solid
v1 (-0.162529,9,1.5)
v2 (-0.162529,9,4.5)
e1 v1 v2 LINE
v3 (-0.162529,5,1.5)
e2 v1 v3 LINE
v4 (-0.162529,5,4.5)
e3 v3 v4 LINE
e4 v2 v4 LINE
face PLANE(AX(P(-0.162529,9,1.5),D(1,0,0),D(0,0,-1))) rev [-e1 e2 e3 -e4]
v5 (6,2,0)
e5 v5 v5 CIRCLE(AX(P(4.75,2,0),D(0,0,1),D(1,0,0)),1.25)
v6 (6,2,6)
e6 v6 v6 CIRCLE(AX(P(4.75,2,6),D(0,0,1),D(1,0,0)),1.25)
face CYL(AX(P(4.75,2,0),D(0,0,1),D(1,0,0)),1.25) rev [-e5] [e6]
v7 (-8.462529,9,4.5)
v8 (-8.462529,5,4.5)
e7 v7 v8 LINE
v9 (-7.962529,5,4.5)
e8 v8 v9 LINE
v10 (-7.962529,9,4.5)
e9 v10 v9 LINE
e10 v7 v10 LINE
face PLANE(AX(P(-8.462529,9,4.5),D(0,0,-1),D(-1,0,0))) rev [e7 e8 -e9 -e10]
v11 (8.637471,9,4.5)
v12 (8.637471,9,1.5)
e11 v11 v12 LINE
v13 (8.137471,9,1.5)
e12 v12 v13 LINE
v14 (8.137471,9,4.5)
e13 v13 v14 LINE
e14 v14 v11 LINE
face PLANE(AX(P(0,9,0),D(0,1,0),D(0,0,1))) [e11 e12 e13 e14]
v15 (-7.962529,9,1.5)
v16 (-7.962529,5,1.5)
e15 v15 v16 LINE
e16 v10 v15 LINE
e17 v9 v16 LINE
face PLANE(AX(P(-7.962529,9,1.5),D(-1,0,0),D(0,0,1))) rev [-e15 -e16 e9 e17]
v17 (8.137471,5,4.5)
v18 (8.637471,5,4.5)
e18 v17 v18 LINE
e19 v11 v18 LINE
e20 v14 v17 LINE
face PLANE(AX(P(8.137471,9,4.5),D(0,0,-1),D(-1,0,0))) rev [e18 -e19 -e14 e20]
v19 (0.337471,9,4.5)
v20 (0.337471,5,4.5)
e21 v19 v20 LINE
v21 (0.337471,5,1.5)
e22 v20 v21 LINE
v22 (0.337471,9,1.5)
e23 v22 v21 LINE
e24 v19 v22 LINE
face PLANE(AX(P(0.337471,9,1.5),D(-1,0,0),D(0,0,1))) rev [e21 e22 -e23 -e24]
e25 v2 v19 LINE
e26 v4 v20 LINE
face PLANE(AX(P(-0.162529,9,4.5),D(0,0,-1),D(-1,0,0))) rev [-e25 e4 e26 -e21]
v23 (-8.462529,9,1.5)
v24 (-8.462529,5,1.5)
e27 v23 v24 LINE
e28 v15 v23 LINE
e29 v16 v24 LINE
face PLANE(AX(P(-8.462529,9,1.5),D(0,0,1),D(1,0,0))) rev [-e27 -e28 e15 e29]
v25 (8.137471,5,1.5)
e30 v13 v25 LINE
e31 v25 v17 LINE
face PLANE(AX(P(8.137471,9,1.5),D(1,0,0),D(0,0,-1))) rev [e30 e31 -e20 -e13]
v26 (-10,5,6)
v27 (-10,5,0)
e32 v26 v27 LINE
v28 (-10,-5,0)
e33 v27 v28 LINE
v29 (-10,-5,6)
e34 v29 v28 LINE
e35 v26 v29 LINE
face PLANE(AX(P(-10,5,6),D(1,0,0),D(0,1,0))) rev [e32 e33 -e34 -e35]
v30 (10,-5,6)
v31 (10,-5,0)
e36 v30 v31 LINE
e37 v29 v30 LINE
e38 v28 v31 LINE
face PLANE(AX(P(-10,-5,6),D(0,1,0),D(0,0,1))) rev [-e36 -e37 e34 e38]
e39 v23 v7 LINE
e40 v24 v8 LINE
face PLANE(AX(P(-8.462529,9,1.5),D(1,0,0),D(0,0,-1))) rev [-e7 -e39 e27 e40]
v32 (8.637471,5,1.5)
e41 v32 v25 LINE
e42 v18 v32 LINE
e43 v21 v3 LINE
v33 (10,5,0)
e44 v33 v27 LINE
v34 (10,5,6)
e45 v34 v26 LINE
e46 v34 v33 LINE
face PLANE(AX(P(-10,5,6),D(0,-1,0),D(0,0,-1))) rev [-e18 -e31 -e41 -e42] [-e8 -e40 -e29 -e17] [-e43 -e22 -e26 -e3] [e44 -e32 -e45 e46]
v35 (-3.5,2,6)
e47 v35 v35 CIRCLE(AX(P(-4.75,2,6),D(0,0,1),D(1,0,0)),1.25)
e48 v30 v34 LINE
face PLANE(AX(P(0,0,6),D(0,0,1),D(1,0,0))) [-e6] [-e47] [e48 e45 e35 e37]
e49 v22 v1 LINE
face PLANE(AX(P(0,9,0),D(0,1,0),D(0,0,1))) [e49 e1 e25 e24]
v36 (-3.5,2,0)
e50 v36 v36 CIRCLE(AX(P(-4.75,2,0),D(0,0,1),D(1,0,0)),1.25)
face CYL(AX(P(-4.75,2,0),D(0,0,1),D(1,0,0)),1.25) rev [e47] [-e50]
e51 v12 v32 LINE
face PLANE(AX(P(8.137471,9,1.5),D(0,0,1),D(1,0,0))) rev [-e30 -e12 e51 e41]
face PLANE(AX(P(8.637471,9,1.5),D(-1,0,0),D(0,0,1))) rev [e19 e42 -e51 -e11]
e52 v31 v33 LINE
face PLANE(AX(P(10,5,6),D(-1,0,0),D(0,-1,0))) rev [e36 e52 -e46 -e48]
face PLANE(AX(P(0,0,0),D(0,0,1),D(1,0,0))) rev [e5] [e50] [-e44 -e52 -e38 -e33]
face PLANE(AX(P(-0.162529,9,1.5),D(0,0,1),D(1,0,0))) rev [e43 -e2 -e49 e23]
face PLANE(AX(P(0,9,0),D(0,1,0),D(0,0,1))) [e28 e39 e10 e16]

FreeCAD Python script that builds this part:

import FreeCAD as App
import Part
import Sketcher

V = App.Vector


def add_polygon(sketch, points):
    """Adds a closed chain of lines whose ends are joined by coincident constraints."""
    first, n = sketch.GeometryCount, len(points)
    for a, b in zip(points, points[1:] + points[:1]):
        sketch.addGeometry(Part.LineSegment(App.Vector(*a, 0), App.Vector(*b, 0)), False)
    for i in range(n):
        sketch.addConstraint(Sketcher.Constraint("Coincident", first + i, 2, first + (i + 1) % n, 1))

doc = App.newDocument("Part")
body = doc.addObject("PartDesign::Body", "Body")

# Sketch on XY plane
sketch1 = doc.addObject("Sketcher::SketchObject", "Sketch")
body.addObject(sketch1)
sketch1.AttachmentSupport = (doc.XY_Plane, [""])
sketch1.MapMode = "FlatFace"
add_polygon(sketch1, [(-10, 5), (-10, -5), (10, -5), (10, 5)])  # lines 0-3
sketch1.addConstraint(Sketcher.Constraint("Vertical", 0))
sketch1.addConstraint(Sketcher.Constraint("Horizontal", 1))
sketch1.addConstraint(Sketcher.Constraint("Vertical", 2))
sketch1.addConstraint(Sketcher.Constraint("Horizontal", 3))
sketch1.addConstraint(Sketcher.Constraint("Symmetric", 0, 2, 2, 2, -1, 1))
sketch1.addConstraint(Sketcher.Constraint("DistanceX", 1, 1, 1, 2, 20.0))
sketch1.addConstraint(Sketcher.Constraint("DistanceY", 0, 2, 0, 1, 10.0))
pad1 = doc.addObject("PartDesign::Pad", "Pad")
body.addObject(pad1)
pad1.Profile = sketch1
pad1.Length = 6

# Sketch on XZ plane
sketch2 = doc.addObject("Sketcher::SketchObject", "Sketch001")
body.addObject(sketch2)
sketch2.AttachmentSupport = (doc.XZ_Plane, [""])
sketch2.MapMode = "FlatFace"
sketch2.AttachmentOffset = App.Placement(V(0, 0, -5), App.Rotation())
add_polygon(sketch2, [(-8.5, 1.5), (-8.5, 4.5), (-8, 4.5), (-8, 1.5)])  # lines 0-3
add_polygon(sketch2, [(-0.2, 1.5), (-0.2, 4.5), (0.3, 4.5), (0.3, 1.5)])  # lines 4-7
add_polygon(sketch2, [(8.1, 1.5), (8.1, 4.5), (8.6, 4.5), (8.6, 1.5)])  # lines 8-11
sketch2.addConstraint(Sketcher.Constraint("Vertical", 0))
sketch2.addConstraint(Sketcher.Constraint("Horizontal", 1))
sketch2.addConstraint(Sketcher.Constraint("Vertical", 2))
sketch2.addConstraint(Sketcher.Constraint("Horizontal", 3))
sketch2.addConstraint(Sketcher.Constraint("Vertical", 4))
sketch2.addConstraint(Sketcher.Constraint("Horizontal", 5))
sketch2.addConstraint(Sketcher.Constraint("Vertical", 6))
sketch2.addConstraint(Sketcher.Constraint("Horizontal", 7))
sketch2.addConstraint(Sketcher.Constraint("Vertical", 8))
sketch2.addConstraint(Sketcher.Constraint("Horizontal", 9))
sketch2.addConstraint(Sketcher.Constraint("Vertical", 10))
sketch2.addConstraint(Sketcher.Constraint("Horizontal", 11))
sketch2.addConstraint(Sketcher.Constraint("Horizontal", 1, 2, 4, 2))
sketch2.addConstraint(Sketcher.Constraint("Horizontal", 3, 2, 6, 2))
sketch2.addConstraint(Sketcher.Constraint("Horizontal", 5, 2, 8, 2))
sketch2.addConstraint(Sketcher.Constraint("Horizontal", 7, 2, 10, 2))
sketch2.addConstraint(Sketcher.Constraint("Equal", 3, 5))
sketch2.addConstraint(Sketcher.Constraint("Equal", 7, 9))
sketch2.addConstraint(Sketcher.Constraint("DistanceY", 0, 1, 0, 2, 3.0))
sketch2.addConstraint(Sketcher.Constraint("DistanceX", 1, 1, 1, 2, 0.5))
sketch2.addConstraint(Sketcher.Constraint("DistanceY", -1, 1, 0, 2, 4.5))
sketch2.addConstraint(Sketcher.Constraint("DistanceX", 1, 2, 4, 2, 7.8))
sketch2.addConstraint(Sketcher.Constraint("DistanceX", 5, 2, 8, 2, 7.8))
sketch2.addConstraint(Sketcher.Constraint("DistanceX", 0, 2, -1, 1, 8.462529))
pad2 = doc.addObject("PartDesign::Pad", "Pad001")
body.addObject(pad2)
pad2.Profile = sketch2
pad2.Length = 4
pad2.Reversed = True

# Sketch on XY plane
sketch3 = doc.addObject("Sketcher::SketchObject", "Sketch002")
body.addObject(sketch3)
sketch3.AttachmentSupport = (doc.XY_Plane, [""])
sketch3.MapMode = "FlatFace"
sketch3.AttachmentOffset = App.Placement(V(0, 0, 6), App.Rotation())
sketch3.addGeometry(Part.Circle(V(-4.8, 2, 0), V(0, 0, 1), 1.2), False)
sketch3.addGeometry(Part.Circle(V(4.8, 2, 0), V(0, 0, 1), 1.2), False)
sketch3.addConstraint(Sketcher.Constraint("Equal", 0, 1))
sketch3.addConstraint(Sketcher.Constraint("Symmetric", 0, 3, 1, 3, -2))
sketch3.addConstraint(Sketcher.Constraint("Diameter", 0, 2.5))
sketch3.addConstraint(Sketcher.Constraint("DistanceY", -1, 1, 0, 3, 2.0))
sketch3.addConstraint(Sketcher.Constraint("DistanceX", 0, 3, 1, 3, 9.5))
pocket1 = doc.addObject("PartDesign::Pocket", "Pocket")
body.addObject(pocket1)
pocket1.Profile = sketch3
pocket1.Type = "ThroughAll"

doc.recompute()
